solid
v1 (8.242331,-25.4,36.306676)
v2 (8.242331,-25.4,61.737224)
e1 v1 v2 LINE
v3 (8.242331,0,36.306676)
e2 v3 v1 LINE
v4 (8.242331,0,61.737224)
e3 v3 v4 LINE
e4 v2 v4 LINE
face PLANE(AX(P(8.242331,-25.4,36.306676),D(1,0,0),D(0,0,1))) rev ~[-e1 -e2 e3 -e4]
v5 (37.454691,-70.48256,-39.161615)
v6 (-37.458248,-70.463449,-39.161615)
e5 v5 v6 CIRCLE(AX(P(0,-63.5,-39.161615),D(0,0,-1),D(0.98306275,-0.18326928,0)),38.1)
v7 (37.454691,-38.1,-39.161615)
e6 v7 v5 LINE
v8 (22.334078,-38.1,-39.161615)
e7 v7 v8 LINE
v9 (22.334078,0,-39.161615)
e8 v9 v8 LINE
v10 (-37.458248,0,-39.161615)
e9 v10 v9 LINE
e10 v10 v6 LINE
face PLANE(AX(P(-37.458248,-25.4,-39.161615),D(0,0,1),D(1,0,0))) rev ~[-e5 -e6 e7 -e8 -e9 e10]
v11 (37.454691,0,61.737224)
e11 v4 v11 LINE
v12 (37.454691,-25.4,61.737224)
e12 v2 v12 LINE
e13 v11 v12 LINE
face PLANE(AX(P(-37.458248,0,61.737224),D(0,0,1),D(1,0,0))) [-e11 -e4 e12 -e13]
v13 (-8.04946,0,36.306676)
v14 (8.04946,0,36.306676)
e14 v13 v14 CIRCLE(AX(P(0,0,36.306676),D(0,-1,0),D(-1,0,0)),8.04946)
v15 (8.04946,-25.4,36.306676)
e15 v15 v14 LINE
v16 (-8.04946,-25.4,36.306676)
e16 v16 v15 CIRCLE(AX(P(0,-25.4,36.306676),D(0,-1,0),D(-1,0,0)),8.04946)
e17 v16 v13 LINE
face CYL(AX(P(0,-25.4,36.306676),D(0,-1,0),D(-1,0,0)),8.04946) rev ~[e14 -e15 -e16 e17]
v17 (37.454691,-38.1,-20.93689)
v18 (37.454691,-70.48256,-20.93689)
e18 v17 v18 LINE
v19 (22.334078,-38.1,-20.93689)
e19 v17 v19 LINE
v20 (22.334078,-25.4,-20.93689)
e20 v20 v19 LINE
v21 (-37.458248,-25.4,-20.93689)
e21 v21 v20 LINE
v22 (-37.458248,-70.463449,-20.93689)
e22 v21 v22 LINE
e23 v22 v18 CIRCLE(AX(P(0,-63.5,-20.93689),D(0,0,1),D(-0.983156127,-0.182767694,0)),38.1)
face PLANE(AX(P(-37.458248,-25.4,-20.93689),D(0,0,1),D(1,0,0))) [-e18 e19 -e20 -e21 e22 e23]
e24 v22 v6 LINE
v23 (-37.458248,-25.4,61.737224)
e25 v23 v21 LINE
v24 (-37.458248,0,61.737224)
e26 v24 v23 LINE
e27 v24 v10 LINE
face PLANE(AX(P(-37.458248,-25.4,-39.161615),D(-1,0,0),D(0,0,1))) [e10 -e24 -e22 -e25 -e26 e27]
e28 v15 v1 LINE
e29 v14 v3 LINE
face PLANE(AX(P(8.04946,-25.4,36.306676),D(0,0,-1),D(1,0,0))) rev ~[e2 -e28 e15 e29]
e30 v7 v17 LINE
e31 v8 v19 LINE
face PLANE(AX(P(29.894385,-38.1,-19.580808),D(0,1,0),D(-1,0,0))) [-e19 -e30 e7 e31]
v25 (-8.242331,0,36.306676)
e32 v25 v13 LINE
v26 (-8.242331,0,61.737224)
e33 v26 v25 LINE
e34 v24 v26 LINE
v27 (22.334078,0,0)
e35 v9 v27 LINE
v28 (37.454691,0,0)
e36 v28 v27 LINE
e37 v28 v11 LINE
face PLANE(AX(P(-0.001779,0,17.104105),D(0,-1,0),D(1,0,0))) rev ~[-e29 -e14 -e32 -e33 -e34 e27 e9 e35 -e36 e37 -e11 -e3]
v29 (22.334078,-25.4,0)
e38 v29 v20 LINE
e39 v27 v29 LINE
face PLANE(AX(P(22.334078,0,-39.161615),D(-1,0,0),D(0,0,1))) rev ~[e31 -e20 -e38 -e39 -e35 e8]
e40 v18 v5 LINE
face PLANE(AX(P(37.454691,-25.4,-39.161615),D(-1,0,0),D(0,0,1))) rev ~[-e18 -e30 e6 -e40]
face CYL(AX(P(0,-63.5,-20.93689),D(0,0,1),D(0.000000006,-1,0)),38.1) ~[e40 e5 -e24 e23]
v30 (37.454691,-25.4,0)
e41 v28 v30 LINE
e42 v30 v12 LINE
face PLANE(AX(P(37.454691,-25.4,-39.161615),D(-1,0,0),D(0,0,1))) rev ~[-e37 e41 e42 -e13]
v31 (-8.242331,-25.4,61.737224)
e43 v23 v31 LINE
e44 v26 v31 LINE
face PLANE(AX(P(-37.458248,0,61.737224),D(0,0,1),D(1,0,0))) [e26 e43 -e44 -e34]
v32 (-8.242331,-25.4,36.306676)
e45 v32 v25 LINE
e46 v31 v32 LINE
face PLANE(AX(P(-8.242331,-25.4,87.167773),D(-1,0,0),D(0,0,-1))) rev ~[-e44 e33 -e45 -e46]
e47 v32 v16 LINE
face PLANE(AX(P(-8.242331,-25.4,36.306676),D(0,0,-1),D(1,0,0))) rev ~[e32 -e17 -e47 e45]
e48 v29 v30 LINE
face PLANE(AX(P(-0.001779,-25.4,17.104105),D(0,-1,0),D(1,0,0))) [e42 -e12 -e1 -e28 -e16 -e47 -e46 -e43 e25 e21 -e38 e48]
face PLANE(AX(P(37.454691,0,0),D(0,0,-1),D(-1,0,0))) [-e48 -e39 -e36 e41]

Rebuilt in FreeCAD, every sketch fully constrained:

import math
import FreeCAD as App
import Part
import Sketcher
Q = App.Units.Quantity


def add_polygon(sketch, points):
    """Adds a closed chain of lines whose ends are joined by coincident constraints."""
    first, n = sketch.GeometryCount, len(points)
    for a, b in zip(points, points[1:] + points[:1]):
        sketch.addGeometry(Part.LineSegment(App.Vector(*a, 0), App.Vector(*b, 0)), False)
    for i in range(n):
        sketch.addConstraint(Sketcher.Constraint("Coincident", first + i, 2, first + (i + 1) % n, 1))

doc = App.newDocument("Part")
params = doc.addObject("Spreadsheet::Sheet", "Params")
for row, (alias, value) in enumerate([
    ("pad1_length", "1 in"),
    ("pocket1_length", "3 in"),
    ("pad2_length", "3 in"),
    ("sketch4_radius", "1.5 in"),
    ("pocket2_length", "1 in"),
    ("pocket3_length", "1.5 in"),
], start=1):
    params.set(f"A{row}", alias)
    params.set(f"B{row}", "=" + value)
    params.setAlias(f"B{row}", alias)

body = doc.addObject("PartDesign::Body", "Body")

# Sketch on XZ plane
sketch1 = body.newObject("Sketcher::SketchObject", "Sketch")
sketch1.AttachmentSupport = (doc.getObject("XZ_Plane"), [""])
sketch1.MapMode = "FlatFace"
add_polygon(sketch1, [(-37.458248, 61.737224), (-37.458248, -39.161615), (37.454691, -39.161615), (37.454691, 61.737224)])  # lines 0-3
sketch1.addConstraint([
    Sketcher.Constraint("Vertical", 0),
    Sketcher.Constraint("Horizontal", 1),
    Sketcher.Constraint("Vertical", 2),
    Sketcher.Constraint("Horizontal", 3),
    Sketcher.Constraint("DistanceX", 1, 1, 1, 2, Q("74.912939 mm")),
    Sketcher.Constraint("DistanceY", 0, 2, 0, 1, Q("100.89884 mm")),
    Sketcher.Constraint("DistanceX", 0, 2, -1, 1, Q("37.458248 mm")),
    Sketcher.Constraint("DistanceY", 0, 2, -1, 1, Q("39.161615 mm")),
])
pad1 = body.newObject("PartDesign::Pad", "Pad")
pad1.Profile = sketch1
pad1.setExpression("Length", "Params.pad1_length")

# Sketch on XZ plane
sketch2 = body.newObject("Sketcher::SketchObject", "Sketch001")
sketch2.AttachmentSupport = (doc.getObject("XZ_Plane"), [""])
sketch2.MapMode = "FlatFace"
sketch2.AttachmentOffset = App.Placement(App.Vector(0, 0, 1 * 25.4), App.Rotation())
sketch2.addGeometry([
    Part.LineSegment(App.Vector(8.04946, 36.306676, 0), App.Vector(8.242331, 36.306676, 0)),  # 0
    Part.LineSegment(App.Vector(8.242331, 36.306676, 0), App.Vector(8.242331, 87.167773, 0)),  # 1
    Part.LineSegment(App.Vector(8.242331, 87.167773, 0), App.Vector(-8.242331, 87.167773, 0)),  # 2
    Part.LineSegment(App.Vector(-8.242331, 87.167773, 0), App.Vector(-8.242331, 36.306676, 0)),  # 3
    Part.LineSegment(App.Vector(-8.242331, 36.306676, 0), App.Vector(-8.04946, 36.306676, 0)),  # 4
    Part.ArcOfCircle(Part.Circle(App.Vector(0, 36.306676, 0), App.Vector(0, 0, 1), 8.04946), math.radians(-180), math.radians(0)),  # 5
], False)
sketch2.addConstraint([
    Sketcher.Constraint("Coincident", 0, 2, 1, 1),
    Sketcher.Constraint("Coincident", 1, 2, 2, 1),
    Sketcher.Constraint("Coincident", 2, 2, 3, 1),
    Sketcher.Constraint("Coincident", 3, 2, 4, 1),
    Sketcher.Constraint("Coincident", 4, 2, 5, 1),
    Sketcher.Constraint("Coincident", 5, 2, 0, 1),
    Sketcher.Constraint("Horizontal", 0),
    Sketcher.Constraint("Vertical", 1),
    Sketcher.Constraint("Horizontal", 2),
    Sketcher.Constraint("Vertical", 3),
    Sketcher.Constraint("Horizontal", 4),
    Sketcher.Constraint("Symmetric", 0, 2, 3, 2, -2),
    Sketcher.Constraint("PointOnObject", 5, 3, -2),
    Sketcher.Constraint("Horizontal", 5, 3, 0, 2),
    Sketcher.Constraint("Radius", 5, Q("8.04946 mm")),
    Sketcher.Constraint("DistanceX", 0, 1, 0, 2, Q("0.192872 mm")),
    Sketcher.Constraint("DistanceY", 1, 1, 1, 2, Q("50.861098 mm")),
    Sketcher.Constraint("DistanceY", -1, 1, 5, 3, Q("36.306676 mm")),
])
pocket1 = body.newObject("PartDesign::Pocket", "Pocket")
pocket1.Profile = sketch2
pocket1.setExpression("Length", "Params.pocket1_length")
pocket1.Midplane = True

# Sketch on XZ plane
sketch3 = body.newObject("Sketcher::SketchObject", "Sketch002")
sketch3.AttachmentSupport = (doc.getObject("XZ_Plane"), [""])
sketch3.MapMode = "FlatFace"
sketch3.AttachmentOffset = App.Placement(App.Vector(0, 0, 1 * 25.4), App.Rotation())
add_polygon(sketch3, [(-37.458248, -20.93689), (-37.458248, -39.161615), (37.454691, -39.161615), (37.454691, -20.93689)])  # lines 0-3
sketch3.addConstraint([
    Sketcher.Constraint("Vertical", 0),
    Sketcher.Constraint("Horizontal", 1),
    Sketcher.Constraint("Vertical", 2),
    Sketcher.Constraint("Horizontal", 3),
    Sketcher.Constraint("DistanceX", 1, 1, 1, 2, Q("74.912939 mm")),
    Sketcher.Constraint("DistanceY", 0, 2, 0, 1, Q("18.224725 mm")),
    Sketcher.Constraint("DistanceX", 0, 2, -1, 1, Q("37.458248 mm")),
    Sketcher.Constraint("DistanceY", 2, 2, -1, 1, Q("20.93689 mm")),
])
pad2 = body.newObject("PartDesign::Pad", "Pad001")
pad2.Profile = sketch3
pad2.setExpression("Length", "Params.pad2_length")

# Sketch on XY plane
sketch4 = body.newObject("Sketcher::SketchObject", "Sketch003")
sketch4.AttachmentSupport = (doc.getObject("XY_Plane"), [""])
sketch4.MapMode = "FlatFace"
sketch4.AttachmentOffset = App.Placement(App.Vector(0, 0, -20.93689), App.Rotation())
sketch4.addGeometry([
    Part.ArcOfCircle(Part.Circle(App.Vector(0, -63.5, 0), App.Vector(0, 0, 1), 38.1), math.radians(-169.468988), math.radians(-90)),  # 0
    Part.LineSegment(App.Vector(-37.458248, -70.463449, 0), App.Vector(-37.458248, -101.6, 0)),  # 1
    Part.LineSegment(App.Vector(-37.458248, -101.6, 0), App.Vector(0, -101.6, 0)),  # 2
    Part.ArcOfCircle(Part.Circle(App.Vector(0, -63.5, 0), App.Vector(0, 0, 1), 38.1), math.radians(-90), math.radians(-10.560244)),  # 3
    Part.LineSegment(App.Vector(0, -101.6, 0), App.Vector(37.454691, -101.6, 0)),  # 4
    Part.LineSegment(App.Vector(37.454691, -101.6, 0), App.Vector(37.454691, -70.48256, 0)),  # 5
], False)
sketch4.addConstraint([
    Sketcher.Constraint("Coincident", 0, 1, 1, 1),
    Sketcher.Constraint("Coincident", 1, 2, 2, 1),
    Sketcher.Constraint("Tangent", 2, 2, 0, 2),
    Sketcher.Constraint("Tangent", 3, 1, 4, 1),
    Sketcher.Constraint("Coincident", 4, 2, 5, 1),
    Sketcher.Constraint("Coincident", 5, 2, 3, 2),
    Sketcher.Constraint("Vertical", 1),
    Sketcher.Constraint("Horizontal", 2),
    Sketcher.Constraint("Horizontal", 4),
    Sketcher.Constraint("Vertical", 5),
    Sketcher.Constraint("Coincident", 3, 3, 0, 3),
    Sketcher.Constraint("Equal", 0, 3),
    Sketcher.Constraint("PointOnObject", 0, 3, -2),
    Sketcher.Constraint("Radius", 0, Q("1.5 in")),
    Sketcher.Constraint("DistanceY", 1, 2, -1, 1, Q("4 in")),
    Sketcher.Constraint("DistanceX", 2, 1, 2, 2, Q("37.458249 mm")),
    Sketcher.Constraint("DistanceX", 4, 1, 4, 2, Q("37.454691 mm")),
])
sketch4.setExpression("Constraints[13]", "Params.sketch4_radius")
pocket2 = body.newObject("PartDesign::Pocket", "Pocket001")
pocket2.Profile = sketch4
pocket2.setExpression("Length", "Params.pocket2_length")

# Sketch on XZ plane
sketch5 = body.newObject("Sketcher::SketchObject", "Sketch004")
sketch5.AttachmentSupport = (doc.getObject("XZ_Plane"), [""])
sketch5.MapMode = "FlatFace"
add_polygon(sketch5, [(37.454691, 0), (37.454691, -39.161615), (22.334078, -39.161615), (22.334078, 0)])  # lines 0-3
sketch5.addConstraint([
    Sketcher.Constraint("Vertical", 0),
    Sketcher.Constraint("Horizontal", 1),
    Sketcher.Constraint("Vertical", 2),
    Sketcher.Constraint("Horizontal", 3),
    Sketcher.Constraint("PointOnObject", 2, 2, -1),
    Sketcher.Constraint("DistanceX", 1, 2, 1, 1, Q("15.120612 mm")),
    Sketcher.Constraint("DistanceY", 0, 2, 0, 1, Q("39.161615 mm")),
    Sketcher.Constraint("DistanceX", -1, 1, 0, 2, Q("37.454691 mm")),
])
pocket3 = body.newObject("PartDesign::Pocket", "Pocket002")
pocket3.Profile = sketch5
pocket3.setExpression("Length", "Params.pocket3_length")
pocket3.Reversed = True

doc.recompute()
